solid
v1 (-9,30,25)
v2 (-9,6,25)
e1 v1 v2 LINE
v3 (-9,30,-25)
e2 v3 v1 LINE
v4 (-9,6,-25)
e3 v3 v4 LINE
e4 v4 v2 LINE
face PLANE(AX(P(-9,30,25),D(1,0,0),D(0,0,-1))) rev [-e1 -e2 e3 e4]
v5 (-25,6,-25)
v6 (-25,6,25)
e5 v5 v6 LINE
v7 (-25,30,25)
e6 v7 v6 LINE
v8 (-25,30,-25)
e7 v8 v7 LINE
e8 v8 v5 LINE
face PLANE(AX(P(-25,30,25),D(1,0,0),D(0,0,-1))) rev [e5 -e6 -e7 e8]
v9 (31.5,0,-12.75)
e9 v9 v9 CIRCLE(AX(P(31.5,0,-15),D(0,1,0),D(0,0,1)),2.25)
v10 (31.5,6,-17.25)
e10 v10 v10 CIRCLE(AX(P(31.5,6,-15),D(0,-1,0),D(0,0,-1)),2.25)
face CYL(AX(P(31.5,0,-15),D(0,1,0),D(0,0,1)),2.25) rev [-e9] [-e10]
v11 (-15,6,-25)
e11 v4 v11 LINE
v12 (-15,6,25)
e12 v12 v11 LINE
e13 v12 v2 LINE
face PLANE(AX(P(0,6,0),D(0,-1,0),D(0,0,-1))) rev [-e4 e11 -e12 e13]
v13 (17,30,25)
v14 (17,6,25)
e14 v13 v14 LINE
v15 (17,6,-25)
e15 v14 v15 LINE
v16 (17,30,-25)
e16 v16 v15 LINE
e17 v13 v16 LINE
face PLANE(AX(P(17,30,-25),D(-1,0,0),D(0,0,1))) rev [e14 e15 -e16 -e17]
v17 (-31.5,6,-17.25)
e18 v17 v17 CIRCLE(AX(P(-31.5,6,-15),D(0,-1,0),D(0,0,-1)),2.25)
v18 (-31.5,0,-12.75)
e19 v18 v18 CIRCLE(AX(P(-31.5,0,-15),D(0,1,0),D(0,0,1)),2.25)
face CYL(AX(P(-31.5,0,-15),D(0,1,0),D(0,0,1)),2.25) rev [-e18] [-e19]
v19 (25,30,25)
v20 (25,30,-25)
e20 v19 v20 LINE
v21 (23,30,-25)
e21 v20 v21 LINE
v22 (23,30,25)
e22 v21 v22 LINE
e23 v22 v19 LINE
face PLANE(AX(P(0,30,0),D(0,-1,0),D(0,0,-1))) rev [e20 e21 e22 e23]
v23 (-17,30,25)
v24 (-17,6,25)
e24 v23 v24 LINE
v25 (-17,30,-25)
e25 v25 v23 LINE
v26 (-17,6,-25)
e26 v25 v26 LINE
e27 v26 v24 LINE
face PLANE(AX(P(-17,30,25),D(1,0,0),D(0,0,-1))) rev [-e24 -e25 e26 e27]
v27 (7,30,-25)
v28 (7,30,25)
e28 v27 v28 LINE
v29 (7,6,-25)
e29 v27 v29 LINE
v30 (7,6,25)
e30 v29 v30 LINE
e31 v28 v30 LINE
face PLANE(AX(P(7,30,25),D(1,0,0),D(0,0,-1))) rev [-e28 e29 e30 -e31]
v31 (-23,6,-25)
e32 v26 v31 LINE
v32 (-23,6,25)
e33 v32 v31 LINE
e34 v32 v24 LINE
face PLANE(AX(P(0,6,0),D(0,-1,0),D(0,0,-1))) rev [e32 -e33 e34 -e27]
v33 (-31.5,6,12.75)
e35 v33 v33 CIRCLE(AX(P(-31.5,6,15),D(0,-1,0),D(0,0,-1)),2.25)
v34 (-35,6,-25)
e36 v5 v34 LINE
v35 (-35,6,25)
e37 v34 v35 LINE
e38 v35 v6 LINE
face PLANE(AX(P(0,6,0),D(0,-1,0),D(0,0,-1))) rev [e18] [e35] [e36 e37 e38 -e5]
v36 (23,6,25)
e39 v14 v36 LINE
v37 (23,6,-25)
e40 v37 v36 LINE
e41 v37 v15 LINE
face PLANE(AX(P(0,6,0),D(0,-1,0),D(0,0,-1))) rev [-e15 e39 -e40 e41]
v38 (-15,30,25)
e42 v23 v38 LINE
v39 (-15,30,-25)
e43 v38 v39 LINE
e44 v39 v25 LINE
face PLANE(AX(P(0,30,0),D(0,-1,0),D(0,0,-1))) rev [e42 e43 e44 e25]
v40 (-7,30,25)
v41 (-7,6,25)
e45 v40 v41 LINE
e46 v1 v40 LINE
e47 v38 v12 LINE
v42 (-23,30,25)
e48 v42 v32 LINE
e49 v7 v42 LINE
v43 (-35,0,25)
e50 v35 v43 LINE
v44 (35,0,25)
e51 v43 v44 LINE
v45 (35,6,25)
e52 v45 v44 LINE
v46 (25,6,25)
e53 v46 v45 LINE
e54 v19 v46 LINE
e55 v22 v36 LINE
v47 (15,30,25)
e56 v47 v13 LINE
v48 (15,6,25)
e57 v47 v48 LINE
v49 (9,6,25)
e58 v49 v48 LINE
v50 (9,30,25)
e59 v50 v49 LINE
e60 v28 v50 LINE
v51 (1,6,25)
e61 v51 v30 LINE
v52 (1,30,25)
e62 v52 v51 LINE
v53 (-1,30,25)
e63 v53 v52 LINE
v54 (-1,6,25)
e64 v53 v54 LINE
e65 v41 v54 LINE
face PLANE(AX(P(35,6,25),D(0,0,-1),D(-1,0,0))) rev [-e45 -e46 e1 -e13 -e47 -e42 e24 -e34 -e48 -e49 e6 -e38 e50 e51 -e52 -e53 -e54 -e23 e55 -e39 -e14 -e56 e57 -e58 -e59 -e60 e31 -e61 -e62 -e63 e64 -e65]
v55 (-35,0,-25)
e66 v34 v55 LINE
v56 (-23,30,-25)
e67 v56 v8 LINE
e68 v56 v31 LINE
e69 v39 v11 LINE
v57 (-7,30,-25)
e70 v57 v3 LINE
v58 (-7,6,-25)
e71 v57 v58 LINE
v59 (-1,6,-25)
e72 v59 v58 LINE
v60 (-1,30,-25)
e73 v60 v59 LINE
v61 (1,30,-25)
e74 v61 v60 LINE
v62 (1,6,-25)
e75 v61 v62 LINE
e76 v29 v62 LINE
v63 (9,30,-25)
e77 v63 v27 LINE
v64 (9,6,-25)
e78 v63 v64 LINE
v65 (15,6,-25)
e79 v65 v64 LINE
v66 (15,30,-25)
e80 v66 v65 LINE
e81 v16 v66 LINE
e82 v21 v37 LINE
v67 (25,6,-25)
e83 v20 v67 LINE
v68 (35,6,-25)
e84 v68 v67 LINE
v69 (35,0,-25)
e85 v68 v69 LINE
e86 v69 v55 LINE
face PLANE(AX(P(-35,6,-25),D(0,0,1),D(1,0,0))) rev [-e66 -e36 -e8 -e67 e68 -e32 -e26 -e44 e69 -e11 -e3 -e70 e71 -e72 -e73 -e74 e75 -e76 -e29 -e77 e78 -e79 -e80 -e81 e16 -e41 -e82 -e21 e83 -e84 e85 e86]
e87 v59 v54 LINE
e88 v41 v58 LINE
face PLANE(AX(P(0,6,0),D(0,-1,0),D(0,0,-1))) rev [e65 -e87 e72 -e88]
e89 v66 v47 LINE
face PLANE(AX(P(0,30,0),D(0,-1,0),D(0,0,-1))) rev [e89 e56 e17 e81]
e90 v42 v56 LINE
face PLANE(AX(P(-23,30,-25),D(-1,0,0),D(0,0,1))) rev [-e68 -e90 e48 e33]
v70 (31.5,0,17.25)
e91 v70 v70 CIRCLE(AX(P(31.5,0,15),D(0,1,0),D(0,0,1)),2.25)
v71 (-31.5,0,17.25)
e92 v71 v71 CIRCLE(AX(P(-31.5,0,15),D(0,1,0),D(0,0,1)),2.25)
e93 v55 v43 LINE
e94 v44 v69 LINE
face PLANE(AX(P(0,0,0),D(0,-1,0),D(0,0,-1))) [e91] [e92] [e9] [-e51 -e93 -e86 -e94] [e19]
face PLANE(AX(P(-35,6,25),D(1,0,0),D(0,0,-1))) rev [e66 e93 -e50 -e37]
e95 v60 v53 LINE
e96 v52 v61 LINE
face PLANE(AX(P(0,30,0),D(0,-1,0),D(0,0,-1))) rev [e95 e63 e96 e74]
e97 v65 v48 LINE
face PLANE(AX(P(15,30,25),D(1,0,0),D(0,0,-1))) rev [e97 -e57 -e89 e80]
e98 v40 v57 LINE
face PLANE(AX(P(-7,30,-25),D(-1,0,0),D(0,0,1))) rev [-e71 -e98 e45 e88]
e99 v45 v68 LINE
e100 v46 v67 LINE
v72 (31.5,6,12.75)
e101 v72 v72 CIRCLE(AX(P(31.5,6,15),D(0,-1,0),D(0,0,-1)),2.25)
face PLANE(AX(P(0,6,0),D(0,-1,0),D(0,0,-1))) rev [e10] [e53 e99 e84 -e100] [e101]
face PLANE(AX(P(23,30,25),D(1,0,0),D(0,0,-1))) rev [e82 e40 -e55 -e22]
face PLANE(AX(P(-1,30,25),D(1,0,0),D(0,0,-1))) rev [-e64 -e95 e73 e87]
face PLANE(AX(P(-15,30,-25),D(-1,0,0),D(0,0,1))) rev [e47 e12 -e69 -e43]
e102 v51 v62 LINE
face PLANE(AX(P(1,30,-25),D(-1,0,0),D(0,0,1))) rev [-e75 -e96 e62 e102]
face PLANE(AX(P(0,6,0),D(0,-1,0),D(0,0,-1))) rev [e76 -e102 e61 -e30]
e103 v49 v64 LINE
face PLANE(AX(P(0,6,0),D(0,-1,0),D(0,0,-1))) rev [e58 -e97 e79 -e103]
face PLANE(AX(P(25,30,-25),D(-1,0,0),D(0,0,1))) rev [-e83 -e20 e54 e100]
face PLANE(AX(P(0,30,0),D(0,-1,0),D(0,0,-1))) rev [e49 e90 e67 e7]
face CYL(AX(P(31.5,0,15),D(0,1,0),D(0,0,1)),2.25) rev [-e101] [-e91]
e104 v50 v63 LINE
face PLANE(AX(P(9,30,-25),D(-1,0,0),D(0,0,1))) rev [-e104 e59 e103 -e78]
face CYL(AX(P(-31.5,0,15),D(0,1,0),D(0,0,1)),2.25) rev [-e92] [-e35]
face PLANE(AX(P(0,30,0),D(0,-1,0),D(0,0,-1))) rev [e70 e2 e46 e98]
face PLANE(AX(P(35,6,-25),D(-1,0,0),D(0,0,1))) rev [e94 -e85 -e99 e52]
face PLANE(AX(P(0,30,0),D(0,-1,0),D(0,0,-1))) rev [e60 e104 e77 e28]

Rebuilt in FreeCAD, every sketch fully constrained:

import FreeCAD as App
import Part
import Sketcher

doc = App.newDocument("Part")
body = doc.addObject("PartDesign::Body", "Body")

sketch1 = doc.addObject("Sketcher::SketchObject", "Sketch")
body.addObject(sketch1)
sketch1.AttachmentSupport = (doc.XZ_Plane, [""])
sketch1.MapMode = "FlatFace"
sketch1.addGeometry(Part.LineSegment(App.Vector(-35, -25, 0), App.Vector(-35, 25, 0)), False)
sketch1.addGeometry(Part.LineSegment(App.Vector(-35, 25, 0), App.Vector(35, 25, 0)), False)
sketch1.addGeometry(Part.LineSegment(App.Vector(35, 25, 0), App.Vector(35, -25, 0)), False)
sketch1.addGeometry(Part.LineSegment(App.Vector(35, -25, 0), App.Vector(-35, -25, 0)), False)
sketch1.addConstraint(Sketcher.Constraint("Coincident", 0, 2, 1, 1))
sketch1.addConstraint(Sketcher.Constraint("Coincident", 1, 2, 2, 1))
sketch1.addConstraint(Sketcher.Constraint("Coincident", 2, 2, 3, 1))
sketch1.addConstraint(Sketcher.Constraint("Coincident", 3, 2, 0, 1))
sketch1.addConstraint(Sketcher.Constraint("Vertical", 0))
sketch1.addConstraint(Sketcher.Constraint("Horizontal", 1))
sketch1.addConstraint(Sketcher.Constraint("Vertical", 2))
sketch1.addConstraint(Sketcher.Constraint("Horizontal", 3))
sketch1.addConstraint(Sketcher.Constraint("Symmetric", 0, 2, 2, 2, -1, 1))
sketch1.addConstraint(Sketcher.Constraint("DistanceX", 1, 1, 1, 2, 70.0))
sketch1.addConstraint(Sketcher.Constraint("DistanceY", 0, 1, 0, 2, 50.0))
pad1 = doc.addObject("PartDesign::Pad", "Pad")
body.addObject(pad1)
pad1.Profile = sketch1
pad1.Length = 6
pad1.Reversed = True

sketch2 = doc.addObject("Sketcher::SketchObject", "Sketch001")
body.addObject(sketch2)
sketch2.AttachmentSupport = (doc.XZ_Plane, [""])
sketch2.MapMode = "FlatFace"
sketch2.AttachmentOffset = App.Placement(App.Vector(0, 0, -5.5), App.Rotation())
sketch2.addGeometry(Part.LineSegment(App.Vector(-25, -25, 0), App.Vector(-25, 25, 0)), False)
sketch2.addGeometry(Part.LineSegment(App.Vector(-25, 25, 0), App.Vector(-23, 25, 0)), False)
sketch2.addGeometry(Part.LineSegment(App.Vector(-23, 25, 0), App.Vector(-23, -25, 0)), False)
sketch2.addGeometry(Part.LineSegment(App.Vector(-23, -25, 0), App.Vector(-25, -25, 0)), False)
sketch2.addGeometry(Part.LineSegment(App.Vector(-17, -25, 0), App.Vector(-17, 25, 0)), False)
sketch2.addGeometry(Part.LineSegment(App.Vector(-17, 25, 0), App.Vector(-15, 25, 0)), False)
sketch2.addGeometry(Part.LineSegment(App.Vector(-15, 25, 0), App.Vector(-15, -25, 0)), False)
sketch2.addGeometry(Part.LineSegment(App.Vector(-15, -25, 0), App.Vector(-17, -25, 0)), False)
sketch2.addGeometry(Part.LineSegment(App.Vector(-9, -25, 0), App.Vector(-9, 25, 0)), False)
sketch2.addGeometry(Part.LineSegment(App.Vector(-9, 25, 0), App.Vector(-7, 25, 0)), False)
sketch2.addGeometry(Part.LineSegment(App.Vector(-7, 25, 0), App.Vector(-7, -25, 0)), False)
sketch2.addGeometry(Part.LineSegment(App.Vector(-7, -25, 0), App.Vector(-9, -25, 0)), False)
sketch2.addGeometry(Part.LineSegment(App.Vector(-1, -25, 0), App.Vector(-1, 25, 0)), False)
sketch2.addGeometry(Part.LineSegment(App.Vector(-1, 25, 0), App.Vector(1, 25, 0)), False)
sketch2.addGeometry(Part.LineSegment(App.Vector(1, 25, 0), App.Vector(1, -25, 0)), False)
sketch2.addGeometry(Part.LineSegment(App.Vector(1, -25, 0), App.Vector(-1, -25, 0)), False)
sketch2.addGeometry(Part.LineSegment(App.Vector(7, -25, 0), App.Vector(7, 25, 0)), False)
sketch2.addGeometry(Part.LineSegment(App.Vector(7, 25, 0), App.Vector(9, 25, 0)), False)
sketch2.addGeometry(Part.LineSegment(App.Vector(9, 25, 0), App.Vector(9, -25, 0)), False)
sketch2.addGeometry(Part.LineSegment(App.Vector(9, -25, 0), App.Vector(7, -25, 0)), False)
sketch2.addGeometry(Part.LineSegment(App.Vector(15, -25, 0), App.Vector(15, 25, 0)), False)
sketch2.addGeometry(Part.LineSegment(App.Vector(15, 25, 0), App.Vector(17, 25, 0)), False)
sketch2.addGeometry(Part.LineSegment(App.Vector(17, 25, 0), App.Vector(17, -25, 0)), False)
sketch2.addGeometry(Part.LineSegment(App.Vector(17, -25, 0), App.Vector(15, -25, 0)), False)
sketch2.addGeometry(Part.LineSegment(App.Vector(23, -25, 0), App.Vector(23, 25, 0)), False)
sketch2.addGeometry(Part.LineSegment(App.Vector(23, 25, 0), App.Vector(25, 25, 0)), False)
sketch2.addGeometry(Part.LineSegment(App.Vector(25, 25, 0), App.Vector(25, -25, 0)), False)
sketch2.addGeometry(Part.LineSegment(App.Vector(25, -25, 0), App.Vector(23, -25, 0)), False)
sketch2.addConstraint(Sketcher.Constraint("Coincident", 0, 2, 1, 1))
sketch2.addConstraint(Sketcher.Constraint("Coincident", 1, 2, 2, 1))
sketch2.addConstraint(Sketcher.Constraint("Coincident", 2, 2, 3, 1))
sketch2.addConstraint(Sketcher.Constraint("Coincident", 3, 2, 0, 1))
sketch2.addConstraint(Sketcher.Constraint("Coincident", 4, 2, 5, 1))
sketch2.addConstraint(Sketcher.Constraint("Coincident", 5, 2, 6, 1))
sketch2.addConstraint(Sketcher.Constraint("Coincident", 6, 2, 7, 1))
sketch2.addConstraint(Sketcher.Constraint("Coincident", 7, 2, 4, 1))
sketch2.addConstraint(Sketcher.Constraint("Coincident", 8, 2, 9, 1))
sketch2.addConstraint(Sketcher.Constraint("Coincident", 9, 2, 10, 1))
sketch2.addConstraint(Sketcher.Constraint("Coincident", 10, 2, 11, 1))
sketch2.addConstraint(Sketcher.Constraint("Coincident", 11, 2, 8, 1))
sketch2.addConstraint(Sketcher.Constraint("Coincident", 12, 2, 13, 1))
sketch2.addConstraint(Sketcher.Constraint("Coincident", 13, 2, 14, 1))
sketch2.addConstraint(Sketcher.Constraint("Coincident", 14, 2, 15, 1))
sketch2.addConstraint(Sketcher.Constraint("Coincident", 15, 2, 12, 1))
sketch2.addConstraint(Sketcher.Constraint("Coincident", 16, 2, 17, 1))
sketch2.addConstraint(Sketcher.Constraint("Coincident", 17, 2, 18, 1))
sketch2.addConstraint(Sketcher.Constraint("Coincident", 18, 2, 19, 1))
sketch2.addConstraint(Sketcher.Constraint("Coincident", 19, 2, 16, 1))
sketch2.addConstraint(Sketcher.Constraint("Coincident", 20, 2, 21, 1))
sketch2.addConstraint(Sketcher.Constraint("Coincident", 21, 2, 22, 1))
sketch2.addConstraint(Sketcher.Constraint("Coincident", 22, 2, 23, 1))
sketch2.addConstraint(Sketcher.Constraint("Coincident", 23, 2, 20, 1))
sketch2.addConstraint(Sketcher.Constraint("Coincident", 24, 2, 25, 1))
sketch2.addConstraint(Sketcher.Constraint("Coincident", 25, 2, 26, 1))
sketch2.addConstraint(Sketcher.Constraint("Coincident", 26, 2, 27, 1))
sketch2.addConstraint(Sketcher.Constraint("Coincident", 27, 2, 24, 1))
sketch2.addConstraint(Sketcher.Constraint("Vertical", 0))
sketch2.addConstraint(Sketcher.Constraint("Horizontal", 1))
sketch2.addConstraint(Sketcher.Constraint("Vertical", 2))
sketch2.addConstraint(Sketcher.Constraint("Horizontal", 3))
sketch2.addConstraint(Sketcher.Constraint("Vertical", 4))
sketch2.addConstraint(Sketcher.Constraint("Horizontal", 5))
sketch2.addConstraint(Sketcher.Constraint("Vertical", 6))
sketch2.addConstraint(Sketcher.Constraint("Horizontal", 7))
sketch2.addConstraint(Sketcher.Constraint("Vertical", 8))
sketch2.addConstraint(Sketcher.Constraint("Horizontal", 9))
sketch2.addConstraint(Sketcher.Constraint("Vertical", 10))
sketch2.addConstraint(Sketcher.Constraint("Horizontal", 11))
sketch2.addConstraint(Sketcher.Constraint("Vertical", 12))
sketch2.addConstraint(Sketcher.Constraint("Horizontal", 13))
sketch2.addConstraint(Sketcher.Constraint("Vertical", 14))
sketch2.addConstraint(Sketcher.Constraint("Horizontal", 15))
sketch2.addConstraint(Sketcher.Constraint("Vertical", 16))
sketch2.addConstraint(Sketcher.Constraint("Horizontal", 17))
sketch2.addConstraint(Sketcher.Constraint("Vertical", 18))
sketch2.addConstraint(Sketcher.Constraint("Horizontal", 19))
sketch2.addConstraint(Sketcher.Constraint("Vertical", 20))
sketch2.addConstraint(Sketcher.Constraint("Horizontal", 21))
sketch2.addConstraint(Sketcher.Constraint("Vertical", 22))
sketch2.addConstraint(Sketcher.Constraint("Horizontal", 23))
sketch2.addConstraint(Sketcher.Constraint("Vertical", 24))
sketch2.addConstraint(Sketcher.Constraint("Horizontal", 25))
sketch2.addConstraint(Sketcher.Constraint("Vertical", 26))
sketch2.addConstraint(Sketcher.Constraint("Horizontal", 27))
sketch2.addConstraint(Sketcher.Constraint("Symmetric", 12, 2, 14, 2, -1, 1))
sketch2.addConstraint(Sketcher.Constraint("Symmetric", 10, 2, 16, 2, -1, 1))
sketch2.addConstraint(Sketcher.Constraint("Symmetric", 8, 2, 18, 2, -1, 1))
sketch2.addConstraint(Sketcher.Constraint("Symmetric", 6, 2, 20, 2, -1, 1))
sketch2.addConstraint(Sketcher.Constraint("Symmetric", 4, 2, 22, 2, -1, 1))
sketch2.addConstraint(Sketcher.Constraint("Symmetric", 2, 2, 24, 2, -1, 1))
sketch2.addConstraint(Sketcher.Constraint("Symmetric", 0, 2, 26, 2, -1, 1))
sketch2.addConstraint(Sketcher.Constraint("Horizontal", 1, 2, 4, 2))
sketch2.addConstraint(Sketcher.Constraint("Horizontal", 3, 2, 6, 2))
sketch2.addConstraint(Sketcher.Constraint("Horizontal", 5, 2, 8, 2))
sketch2.addConstraint(Sketcher.Constraint("Horizontal", 7, 2, 10, 2))
sketch2.addConstraint(Sketcher.Constraint("Horizontal", 9, 2, 12, 2))
sketch2.addConstraint(Sketcher.Constraint("Horizontal", 11, 2, 14, 2))
sketch2.addConstraint(Sketcher.Constraint("Equal", 3, 5))
sketch2.addConstraint(Sketcher.Constraint("Equal", 7, 9))
sketch2.addConstraint(Sketcher.Constraint("Equal", 11, 13))
sketch2.addConstraint(Sketcher.Constraint("DistanceX", 1, 1, 1, 2, 2.0))
sketch2.addConstraint(Sketcher.Constraint("DistanceY", 0, 1, 0, 2, 50.0))
sketch2.addConstraint(Sketcher.Constraint("DistanceX", 0, 2, -1, 1, 25.0))
sketch2.addConstraint(Sketcher.Constraint("DistanceX", 4, 2, -1, 1, 17.0))
sketch2.addConstraint(Sketcher.Constraint("DistanceX", 8, 2, -1, 1, 9.0))
pad2 = doc.addObject("PartDesign::Pad", "Pad001")
body.addObject(pad2)
pad2.Profile = sketch2
pad2.Length = 24.5
pad2.Reversed = True

sketch3 = doc.addObject("Sketcher::SketchObject", "Sketch002")
body.addObject(sketch3)
sketch3.AttachmentSupport = (doc.XZ_Plane, [""])
sketch3.MapMode = "FlatFace"
sketch3.AttachmentOffset = App.Placement(App.Vector(0, 0, -30), App.Rotation())
sketch3.addGeometry(Part.Circle(App.Vector(-31.5, -15, 0), App.Vector(0, 0, 1), 2.2), False)
sketch3.addGeometry(Part.Circle(App.Vector(-31.5, 15, 0), App.Vector(0, 0, 1), 2.2), False)
sketch3.addGeometry(Part.Circle(App.Vector(31.5, -15, 0), App.Vector(0, 0, 1), 2.2), False)
sketch3.addGeometry(Part.Circle(App.Vector(31.5, 15, 0), App.Vector(0, 0, 1), 2.2), False)
sketch3.addConstraint(Sketcher.Constraint("Equal", 0, 1))
sketch3.addConstraint(Sketcher.Constraint("Equal", 1, 2))
sketch3.addConstraint(Sketcher.Constraint("Equal", 2, 3))
sketch3.addConstraint(Sketcher.Constraint("Symmetric", 1, 3, 2, 3, -1, 1))
sketch3.addConstraint(Sketcher.Constraint("Symmetric", 0, 3, 3, 3, -1, 1))
sketch3.addConstraint(Sketcher.Constraint("Symmetric", 0, 3, 2, 3, -2))
sketch3.addConstraint(Sketcher.Constraint("Diameter", 0, 4.5))
sketch3.addConstraint(Sketcher.Constraint("DistanceY", 0, 3, -1, 1, 15.0))
sketch3.addConstraint(Sketcher.Constraint("DistanceX", 0, 3, 2, 3, 63.0))
pocket1 = doc.addObject("PartDesign::Pocket", "Pocket")
body.addObject(pocket1)
pocket1.Profile = sketch3
pocket1.Type = "ThroughAll"
pocket1.Reversed = True

doc.recompute()
